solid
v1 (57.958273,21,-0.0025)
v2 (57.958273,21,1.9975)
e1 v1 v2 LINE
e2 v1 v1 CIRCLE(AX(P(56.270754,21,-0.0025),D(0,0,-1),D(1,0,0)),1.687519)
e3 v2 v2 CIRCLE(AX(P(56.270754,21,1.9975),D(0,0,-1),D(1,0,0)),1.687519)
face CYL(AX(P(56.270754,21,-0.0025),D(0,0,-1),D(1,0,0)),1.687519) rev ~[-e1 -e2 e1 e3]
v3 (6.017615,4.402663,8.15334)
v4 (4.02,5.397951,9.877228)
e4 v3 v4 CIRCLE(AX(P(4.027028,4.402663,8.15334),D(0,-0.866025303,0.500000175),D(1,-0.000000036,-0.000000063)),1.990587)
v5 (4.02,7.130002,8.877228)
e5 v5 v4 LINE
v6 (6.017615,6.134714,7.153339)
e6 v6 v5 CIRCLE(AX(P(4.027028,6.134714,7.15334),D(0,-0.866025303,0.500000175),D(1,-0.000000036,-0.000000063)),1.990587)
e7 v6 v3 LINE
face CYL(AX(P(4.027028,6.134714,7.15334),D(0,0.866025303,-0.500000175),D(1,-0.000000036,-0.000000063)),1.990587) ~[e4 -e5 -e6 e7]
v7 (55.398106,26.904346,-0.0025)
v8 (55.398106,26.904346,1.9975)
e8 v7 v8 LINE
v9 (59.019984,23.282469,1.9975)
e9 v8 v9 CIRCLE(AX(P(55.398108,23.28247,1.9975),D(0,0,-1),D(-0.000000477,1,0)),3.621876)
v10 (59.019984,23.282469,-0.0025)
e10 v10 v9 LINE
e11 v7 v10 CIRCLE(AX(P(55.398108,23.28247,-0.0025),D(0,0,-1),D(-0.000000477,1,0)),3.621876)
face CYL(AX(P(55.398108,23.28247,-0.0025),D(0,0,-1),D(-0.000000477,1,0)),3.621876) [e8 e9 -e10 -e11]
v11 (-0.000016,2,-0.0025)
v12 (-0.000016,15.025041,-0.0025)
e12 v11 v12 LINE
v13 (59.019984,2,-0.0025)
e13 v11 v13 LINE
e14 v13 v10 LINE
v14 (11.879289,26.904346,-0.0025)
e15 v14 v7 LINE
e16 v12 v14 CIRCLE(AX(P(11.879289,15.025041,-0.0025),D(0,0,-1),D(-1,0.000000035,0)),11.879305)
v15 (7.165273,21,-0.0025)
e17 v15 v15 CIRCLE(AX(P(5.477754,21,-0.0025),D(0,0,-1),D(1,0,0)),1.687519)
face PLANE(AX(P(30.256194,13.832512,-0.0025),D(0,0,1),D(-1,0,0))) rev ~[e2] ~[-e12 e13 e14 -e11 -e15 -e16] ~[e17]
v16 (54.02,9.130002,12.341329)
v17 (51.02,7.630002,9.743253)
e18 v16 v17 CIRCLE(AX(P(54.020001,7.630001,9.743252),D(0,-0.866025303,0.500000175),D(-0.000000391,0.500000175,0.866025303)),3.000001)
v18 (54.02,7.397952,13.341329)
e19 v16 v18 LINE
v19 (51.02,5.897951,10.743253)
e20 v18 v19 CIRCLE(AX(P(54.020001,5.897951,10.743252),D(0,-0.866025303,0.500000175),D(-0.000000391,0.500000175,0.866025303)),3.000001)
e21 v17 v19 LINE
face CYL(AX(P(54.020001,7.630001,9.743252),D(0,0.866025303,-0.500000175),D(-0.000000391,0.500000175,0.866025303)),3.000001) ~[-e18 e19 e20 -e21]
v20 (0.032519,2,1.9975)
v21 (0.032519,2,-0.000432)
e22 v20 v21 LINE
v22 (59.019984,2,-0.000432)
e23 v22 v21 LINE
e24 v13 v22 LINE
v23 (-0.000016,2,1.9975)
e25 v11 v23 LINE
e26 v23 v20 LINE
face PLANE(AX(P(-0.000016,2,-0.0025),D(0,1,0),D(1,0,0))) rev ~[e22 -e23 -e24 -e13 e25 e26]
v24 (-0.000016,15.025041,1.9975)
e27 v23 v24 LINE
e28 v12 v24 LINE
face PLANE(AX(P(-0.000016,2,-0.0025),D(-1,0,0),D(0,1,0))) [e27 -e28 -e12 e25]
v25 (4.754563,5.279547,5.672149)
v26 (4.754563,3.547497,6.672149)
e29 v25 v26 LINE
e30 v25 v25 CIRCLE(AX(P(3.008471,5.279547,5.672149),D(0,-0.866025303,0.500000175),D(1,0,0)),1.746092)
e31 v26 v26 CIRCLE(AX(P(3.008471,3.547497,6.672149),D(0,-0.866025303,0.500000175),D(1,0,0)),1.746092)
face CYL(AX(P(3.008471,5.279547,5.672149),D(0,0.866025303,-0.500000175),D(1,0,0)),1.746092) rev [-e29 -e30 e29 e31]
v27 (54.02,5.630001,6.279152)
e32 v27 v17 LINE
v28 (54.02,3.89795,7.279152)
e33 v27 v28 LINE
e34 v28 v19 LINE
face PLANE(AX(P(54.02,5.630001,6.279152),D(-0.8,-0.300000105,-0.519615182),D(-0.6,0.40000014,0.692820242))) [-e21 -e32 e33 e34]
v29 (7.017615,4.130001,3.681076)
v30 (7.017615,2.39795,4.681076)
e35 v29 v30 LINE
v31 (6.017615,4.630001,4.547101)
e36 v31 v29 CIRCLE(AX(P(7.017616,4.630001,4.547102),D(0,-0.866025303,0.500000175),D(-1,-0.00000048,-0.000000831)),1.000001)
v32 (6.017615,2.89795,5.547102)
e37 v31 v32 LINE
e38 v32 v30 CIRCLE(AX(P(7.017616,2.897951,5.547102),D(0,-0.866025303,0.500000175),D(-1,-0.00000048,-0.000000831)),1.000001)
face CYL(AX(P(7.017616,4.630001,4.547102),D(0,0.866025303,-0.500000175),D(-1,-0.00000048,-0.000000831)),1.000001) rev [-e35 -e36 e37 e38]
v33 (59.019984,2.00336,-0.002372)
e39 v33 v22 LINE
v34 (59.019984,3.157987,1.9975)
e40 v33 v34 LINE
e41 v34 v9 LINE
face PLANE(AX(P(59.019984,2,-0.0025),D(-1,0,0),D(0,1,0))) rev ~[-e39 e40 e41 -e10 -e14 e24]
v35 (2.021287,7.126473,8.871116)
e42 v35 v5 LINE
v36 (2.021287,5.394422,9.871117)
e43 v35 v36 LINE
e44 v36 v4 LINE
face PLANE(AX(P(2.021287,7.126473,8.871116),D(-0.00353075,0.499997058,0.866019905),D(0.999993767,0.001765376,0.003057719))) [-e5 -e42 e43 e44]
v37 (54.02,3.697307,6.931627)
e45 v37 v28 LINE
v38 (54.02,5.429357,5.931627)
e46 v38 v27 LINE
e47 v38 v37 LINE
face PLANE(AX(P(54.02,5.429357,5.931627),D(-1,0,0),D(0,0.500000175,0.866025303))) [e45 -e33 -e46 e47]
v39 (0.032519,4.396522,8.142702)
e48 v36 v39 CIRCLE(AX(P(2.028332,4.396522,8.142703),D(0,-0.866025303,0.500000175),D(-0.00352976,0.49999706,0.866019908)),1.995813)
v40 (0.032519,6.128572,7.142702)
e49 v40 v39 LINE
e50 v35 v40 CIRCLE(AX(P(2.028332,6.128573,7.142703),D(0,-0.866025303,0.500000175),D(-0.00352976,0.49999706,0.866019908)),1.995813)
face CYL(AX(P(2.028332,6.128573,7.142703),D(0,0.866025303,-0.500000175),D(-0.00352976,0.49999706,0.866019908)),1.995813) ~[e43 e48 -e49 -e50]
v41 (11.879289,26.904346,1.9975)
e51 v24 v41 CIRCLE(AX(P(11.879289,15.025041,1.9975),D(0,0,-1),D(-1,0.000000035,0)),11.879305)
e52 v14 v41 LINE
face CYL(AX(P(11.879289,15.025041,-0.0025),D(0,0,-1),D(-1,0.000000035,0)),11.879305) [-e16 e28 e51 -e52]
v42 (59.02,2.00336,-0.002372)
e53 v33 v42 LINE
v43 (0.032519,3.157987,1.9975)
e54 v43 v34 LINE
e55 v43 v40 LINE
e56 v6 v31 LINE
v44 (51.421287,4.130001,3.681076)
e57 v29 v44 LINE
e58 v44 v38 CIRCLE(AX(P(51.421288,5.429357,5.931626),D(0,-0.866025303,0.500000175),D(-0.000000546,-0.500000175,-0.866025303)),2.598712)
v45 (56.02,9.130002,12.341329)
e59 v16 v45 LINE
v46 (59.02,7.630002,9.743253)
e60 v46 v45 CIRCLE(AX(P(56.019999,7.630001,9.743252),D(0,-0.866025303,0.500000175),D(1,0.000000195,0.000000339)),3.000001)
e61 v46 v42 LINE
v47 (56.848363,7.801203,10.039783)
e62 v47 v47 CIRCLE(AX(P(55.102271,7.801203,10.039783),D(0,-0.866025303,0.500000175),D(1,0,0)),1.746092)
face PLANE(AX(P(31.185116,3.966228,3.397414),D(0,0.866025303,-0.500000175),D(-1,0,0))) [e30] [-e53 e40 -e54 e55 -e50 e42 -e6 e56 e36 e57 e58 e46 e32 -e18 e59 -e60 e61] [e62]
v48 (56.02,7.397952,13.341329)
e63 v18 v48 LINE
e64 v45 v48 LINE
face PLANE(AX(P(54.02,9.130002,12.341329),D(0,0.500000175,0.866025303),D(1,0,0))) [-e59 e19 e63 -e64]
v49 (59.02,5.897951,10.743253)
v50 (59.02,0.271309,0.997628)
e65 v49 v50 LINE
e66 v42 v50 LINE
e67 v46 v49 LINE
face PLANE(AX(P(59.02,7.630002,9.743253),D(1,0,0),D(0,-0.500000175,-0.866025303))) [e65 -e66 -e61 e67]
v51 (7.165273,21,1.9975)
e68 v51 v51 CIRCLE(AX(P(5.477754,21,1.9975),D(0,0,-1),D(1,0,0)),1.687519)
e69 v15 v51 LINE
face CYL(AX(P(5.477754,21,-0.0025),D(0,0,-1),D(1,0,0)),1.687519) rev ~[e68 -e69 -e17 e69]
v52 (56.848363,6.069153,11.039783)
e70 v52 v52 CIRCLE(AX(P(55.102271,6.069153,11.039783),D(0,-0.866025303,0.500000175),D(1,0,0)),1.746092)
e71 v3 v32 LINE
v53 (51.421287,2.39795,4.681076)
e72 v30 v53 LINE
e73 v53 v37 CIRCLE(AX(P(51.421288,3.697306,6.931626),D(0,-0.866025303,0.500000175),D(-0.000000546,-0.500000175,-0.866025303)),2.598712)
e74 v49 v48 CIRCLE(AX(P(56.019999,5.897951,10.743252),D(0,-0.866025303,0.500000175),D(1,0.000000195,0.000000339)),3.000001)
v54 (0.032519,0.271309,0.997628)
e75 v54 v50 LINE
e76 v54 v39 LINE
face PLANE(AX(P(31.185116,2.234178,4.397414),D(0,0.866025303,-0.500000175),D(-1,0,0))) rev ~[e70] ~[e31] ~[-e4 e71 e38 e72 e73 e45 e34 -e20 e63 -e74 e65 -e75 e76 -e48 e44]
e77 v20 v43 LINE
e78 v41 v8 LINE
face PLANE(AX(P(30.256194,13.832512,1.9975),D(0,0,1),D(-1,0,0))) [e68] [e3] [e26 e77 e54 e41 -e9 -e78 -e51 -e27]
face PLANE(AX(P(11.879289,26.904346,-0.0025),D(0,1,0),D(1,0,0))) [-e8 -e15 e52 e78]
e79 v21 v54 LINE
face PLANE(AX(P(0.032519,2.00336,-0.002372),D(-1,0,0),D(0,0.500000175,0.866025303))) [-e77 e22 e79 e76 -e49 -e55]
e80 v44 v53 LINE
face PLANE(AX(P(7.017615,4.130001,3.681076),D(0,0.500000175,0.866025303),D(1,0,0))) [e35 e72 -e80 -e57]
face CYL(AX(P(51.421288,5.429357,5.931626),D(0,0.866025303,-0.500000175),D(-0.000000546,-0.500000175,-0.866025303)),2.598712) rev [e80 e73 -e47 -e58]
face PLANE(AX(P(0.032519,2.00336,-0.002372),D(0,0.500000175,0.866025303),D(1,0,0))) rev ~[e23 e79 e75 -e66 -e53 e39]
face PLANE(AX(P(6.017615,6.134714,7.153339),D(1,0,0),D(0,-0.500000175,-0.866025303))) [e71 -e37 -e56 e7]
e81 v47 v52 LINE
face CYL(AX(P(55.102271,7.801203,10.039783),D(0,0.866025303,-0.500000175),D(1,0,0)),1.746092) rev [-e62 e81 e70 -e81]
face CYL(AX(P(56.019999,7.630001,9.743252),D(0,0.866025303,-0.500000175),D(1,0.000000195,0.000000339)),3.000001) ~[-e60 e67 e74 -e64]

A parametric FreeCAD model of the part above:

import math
import FreeCAD as App
import Part
import Sketcher
Q = App.Units.Quantity

doc = App.newDocument("Part")
body = doc.addObject("PartDesign::Body", "Body")

sketch1 = body.newObject("Sketcher::SketchObject", "Sketch")
sketch1.AttachmentSupport = (doc.getObject("XZ_Plane"), [""])
sketch1.MapMode = "FlatFace"
sketch1.AttachmentOffset = App.Placement(App.Vector(0, 0, 1.2525), App.Rotation())
sketch1.addGeometry([
    Part.LineSegment(App.Vector(69.999984, 0, 0), App.Vector(10.979984, 0, 0)),
    Part.LineSegment(App.Vector(10.979984, 0, 0), App.Vector(10.979984, -13.025041, 0)),
    Part.ArcOfCircle(Part.Circle(App.Vector(22.859289, -13.025041, 0), App.Vector(0, 0, 1), 11.879305), math.radians(-179.999998), math.radians(-90.000002)),
    Part.LineSegment(App.Vector(22.859289, -24.904346, 0), App.Vector(66.378106, -24.904346, 0)),
    Part.ArcOfCircle(Part.Circle(App.Vector(66.378108, -21.28247, 0), App.Vector(0, 0, 1), 3.621876), math.radians(-90.000027), math.radians(0.000011)),
    Part.LineSegment(App.Vector(69.999984, -21.282469, 0), App.Vector(69.999984, 0, 0)),
    Part.Circle(App.Vector(67.250754, -19, 0), App.Vector(0, 0, 1), 1.687519),
    Part.Circle(App.Vector(16.457754, -19, 0), App.Vector(0, 0, 1), 1.687519),
], False)
sketch1.addConstraint([
    Sketcher.Constraint("Coincident", 0, 2, 1, 1),
    Sketcher.Constraint("Tangent", 1, 2, 2, 1),
    Sketcher.Constraint("Tangent", 2, 2, 3, 1),
    Sketcher.Constraint("Tangent", 3, 2, 4, 1),
    Sketcher.Constraint("Tangent", 4, 2, 5, 1),
    Sketcher.Constraint("Coincident", 5, 2, 0, 1),
    Sketcher.Constraint("Horizontal", 0),
    Sketcher.Constraint("Vertical", 1),
    Sketcher.Constraint("Horizontal", 3),
    Sketcher.Constraint("Vertical", 5),
    Sketcher.Constraint("Equal", 6, 7),
    Sketcher.Constraint("PointOnObject", 0, 2, -1),
    Sketcher.Constraint("Horizontal", 6, 3, 7, 3),
    Sketcher.Constraint("DistanceY", 6, 3, -1, 1, Q("19 mm")),
    Sketcher.Constraint("DistanceX", 0, 2, 0, 1, Q("59.02 mm")),
    Sketcher.Constraint("Diameter", 6, Q("3.375038 mm")),
    Sketcher.Constraint("Radius", 2, Q("11.879305 mm")),
    Sketcher.Constraint("Radius", 4, Q("3.621876 mm")),
    Sketcher.Constraint("DistanceX", 7, 3, 6, 3, Q("50.793 mm")),
    Sketcher.Constraint("DistanceY", 1, 2, 1, 1, Q("13.025041 mm")),
    Sketcher.Constraint("DistanceX", -1, 1, 2, 3, Q("22.859289 mm")),
    Sketcher.Constraint("DistanceX", 0, 2, 7, 3, Q("5.47777 mm")),
])
pad1 = body.newObject("PartDesign::Pad", "Pad")
pad1.Profile = sketch1
pad1.Length = 2
pad1.Reversed = True
body2 = doc.addObject("PartDesign::Body", "Body001")

sketch2 = body2.newObject("Sketcher::SketchObject", "Sketch001")
sketch2.Placement = App.Placement(App.Vector(0, -0.167, -0.63), App.Rotation(App.Vector(1, 0, 0), App.Vector(0, 0.866025303, -0.500000175), App.Vector(0, 0.500000175, 0.866025303), "ZXY"))
sketch2.addGeometry([
    Part.LineSegment(App.Vector(11.012519, 6.997142, 0), App.Vector(11.012519, -1.25328, 0)),
    Part.LineSegment(App.Vector(11.012519, -1.25328, 0), App.Vector(70, -1.25328, 0)),
    Part.LineSegment(App.Vector(70, -1.25328, 0), App.Vector(70, 10, 0)),
    Part.ArcOfCircle(Part.Circle(App.Vector(66.999999, 9.999999, 0), App.Vector(0, 0, 1), 3.000001), math.radians(0.000022), math.radians(89.999978)),
    Part.LineSegment(App.Vector(67, 13, 0), App.Vector(65, 13, 0)),
    Part.ArcOfCircle(Part.Circle(App.Vector(65.000001, 9.999999, 0), App.Vector(0, 0, 1), 3.000001), math.radians(90.000022), math.radians(179.999978)),
    Part.LineSegment(App.Vector(62, 10, 0), App.Vector(65, 6, 0)),
    Part.LineSegment(App.Vector(65, 6, 0), App.Vector(65, 5.598713, 0)),
    Part.ArcOfCircle(Part.Circle(App.Vector(62.401288, 5.598712, 0), App.Vector(0, 0, 1), 2.598712), math.radians(-90.000031), math.radians(0.000031)),
    Part.LineSegment(App.Vector(62.401287, 3, 0), App.Vector(17.997615, 3, 0)),
    Part.ArcOfCircle(Part.Circle(App.Vector(17.997616, 4.000001, 0), App.Vector(0, 0, 1), 1.000001), math.radians(-179.999945), math.radians(-90.000055)),
    Part.LineSegment(App.Vector(16.997615, 4, 0), App.Vector(16.997615, 7.009425, 0)),
    Part.ArcOfCircle(Part.Circle(App.Vector(15.007028, 7.009425, 0), App.Vector(0, 0, 1), 1.990587), math.radians(-0.000004), math.radians(90.202282)),
    Part.LineSegment(App.Vector(15, 9, 0), App.Vector(13.001287, 8.992943, 0)),
    Part.ArcOfCircle(Part.Circle(App.Vector(13.008332, 6.997143, 0), App.Vector(0, 0, 1), 1.995813), math.radians(90.202241), math.radians(180.00002)),
    Part.Circle(App.Vector(13.988471, 5.299093, 0), App.Vector(0, 0, 1), 1.746092),
    Part.Circle(App.Vector(66.082271, 10.342403, 0), App.Vector(0, 0, 1), 1.746092),
], False)
sketch2.addConstraint([
    Sketcher.Constraint("Coincident", 0, 2, 1, 1),
    Sketcher.Constraint("Coincident", 1, 2, 2, 1),
    Sketcher.Constraint("Tangent", 2, 2, 3, 1),
    Sketcher.Constraint("Tangent", 3, 2, 4, 1),
    Sketcher.Constraint("Tangent", 4, 2, 5, 1),
    Sketcher.Constraint("Coincident", 5, 2, 6, 1),
    Sketcher.Constraint("Coincident", 6, 2, 7, 1),
    Sketcher.Constraint("Tangent", 7, 2, 8, 2),
    Sketcher.Constraint("Tangent", 8, 1, 9, 1),
    Sketcher.Constraint("Tangent", 9, 2, 10, 2),
    Sketcher.Constraint("Tangent", 10, 1, 11, 1),
    Sketcher.Constraint("Tangent", 11, 2, 12, 1),
    Sketcher.Constraint("Tangent", 12, 2, 13, 1),
    Sketcher.Constraint("Tangent", 13, 2, 14, 1),
    Sketcher.Constraint("Tangent", 14, 2, 0, 1),
    Sketcher.Constraint("Vertical", 0),
    Sketcher.Constraint("Horizontal", 1),
    Sketcher.Constraint("Vertical", 2),
    Sketcher.Constraint("Horizontal", 4),
    Sketcher.Constraint("Vertical", 7),
    Sketcher.Constraint("Horizontal", 9),
    Sketcher.Constraint("Vertical", 11),
    Sketcher.Constraint("Equal", 3, 5),
    Sketcher.Constraint("Equal", 15, 16),
    Sketcher.Constraint("Horizontal", 2, 2, 5, 2),
    Sketcher.Constraint("Vertical", 4, 2, 6, 2),
    Sketcher.Constraint("Radius", 3, Q("3.000001 mm")),
    Sketcher.Constraint("Radius", 10, Q("1.000001 mm")),
    Sketcher.Constraint("DistanceX", 4, 2, 4, 1, Q("2 mm")),
    Sketcher.Constraint("Distance", 6, Q("5 mm")),
    Sketcher.Constraint("DistanceX", -1, 1, 3, 3, Q("66.999999 mm")),
    Sketcher.Constraint("DistanceY", -1, 1, 3, 3, Q("9.999999 mm")),
    Sketcher.Constraint("DistanceY", -1, 1, 10, 3, Q("4.000001 mm")),
    Sketcher.Constraint("DistanceX", -1, 1, 12, 2, Q("15 mm")),
    Sketcher.Constraint("DistanceY", -1, 1, 12, 2, Q("9 mm")),
    Sketcher.Constraint("Radius", 8, Q("2.598712 mm")),
    Sketcher.Constraint("Diameter", 15, Q("3.492184 mm")),
    Sketcher.Constraint("Radius", 12, Q("1.990587 mm")),
    Sketcher.Constraint("Radius", 14, Q("1.995813 mm")),
    Sketcher.Constraint("DistanceX", 1, 1, 1, 2, Q("58.987481 mm")),
    Sketcher.Constraint("DistanceY", 2, 1, 2, 2, Q("11.25328 mm")),
    Sketcher.Constraint("DistanceX", 9, 2, 9, 1, Q("44.403672 mm")),
    Sketcher.Constraint("DistanceX", -1, 1, 15, 3, Q("13.988471 mm")),
    Sketcher.Constraint("DistanceX", -1, 1, 16, 3, Q("66.082271 mm")),
    Sketcher.Constraint("DistanceY", 15, 3, 14, 3, Q("1.69805 mm")),
    Sketcher.Constraint("DistanceY", 8, 3, 16, 3, Q("4.743691 mm")),
])
pad2 = body2.newObject("PartDesign::Pad", "Pad001")
pad2.Profile = sketch2
pad2.Length = 2
doc.recompute()

boolean = body2.newObject("PartDesign::Boolean", "Boolean")
boolean.Type = "Fuse"
boolean.addObjects([body])
body3 = doc.addObject("PartDesign::Body", "Body002")
doc.recompute()

body2.Placement = App.Placement(App.Vector(0, 0, 0), App.Rotation(App.Vector(1, 0, 0), 90))
boolean2 = body3.newObject("PartDesign::Boolean", "Boolean001")
boolean2.Type = "Fuse"
boolean2.addObjects([body2])
body4 = doc.addObject("PartDesign::Body", "Body003")
doc.recompute()

body3.Placement = App.Placement(App.Vector(-10.98, 2, 1.25), App.Rotation(App.Vector(0, 0, 1), 0))
boolean3 = body4.newObject("PartDesign::Boolean", "Boolean002")
boolean3.Type = "Fuse"
boolean3.addObjects([body3])

doc.recompute()
